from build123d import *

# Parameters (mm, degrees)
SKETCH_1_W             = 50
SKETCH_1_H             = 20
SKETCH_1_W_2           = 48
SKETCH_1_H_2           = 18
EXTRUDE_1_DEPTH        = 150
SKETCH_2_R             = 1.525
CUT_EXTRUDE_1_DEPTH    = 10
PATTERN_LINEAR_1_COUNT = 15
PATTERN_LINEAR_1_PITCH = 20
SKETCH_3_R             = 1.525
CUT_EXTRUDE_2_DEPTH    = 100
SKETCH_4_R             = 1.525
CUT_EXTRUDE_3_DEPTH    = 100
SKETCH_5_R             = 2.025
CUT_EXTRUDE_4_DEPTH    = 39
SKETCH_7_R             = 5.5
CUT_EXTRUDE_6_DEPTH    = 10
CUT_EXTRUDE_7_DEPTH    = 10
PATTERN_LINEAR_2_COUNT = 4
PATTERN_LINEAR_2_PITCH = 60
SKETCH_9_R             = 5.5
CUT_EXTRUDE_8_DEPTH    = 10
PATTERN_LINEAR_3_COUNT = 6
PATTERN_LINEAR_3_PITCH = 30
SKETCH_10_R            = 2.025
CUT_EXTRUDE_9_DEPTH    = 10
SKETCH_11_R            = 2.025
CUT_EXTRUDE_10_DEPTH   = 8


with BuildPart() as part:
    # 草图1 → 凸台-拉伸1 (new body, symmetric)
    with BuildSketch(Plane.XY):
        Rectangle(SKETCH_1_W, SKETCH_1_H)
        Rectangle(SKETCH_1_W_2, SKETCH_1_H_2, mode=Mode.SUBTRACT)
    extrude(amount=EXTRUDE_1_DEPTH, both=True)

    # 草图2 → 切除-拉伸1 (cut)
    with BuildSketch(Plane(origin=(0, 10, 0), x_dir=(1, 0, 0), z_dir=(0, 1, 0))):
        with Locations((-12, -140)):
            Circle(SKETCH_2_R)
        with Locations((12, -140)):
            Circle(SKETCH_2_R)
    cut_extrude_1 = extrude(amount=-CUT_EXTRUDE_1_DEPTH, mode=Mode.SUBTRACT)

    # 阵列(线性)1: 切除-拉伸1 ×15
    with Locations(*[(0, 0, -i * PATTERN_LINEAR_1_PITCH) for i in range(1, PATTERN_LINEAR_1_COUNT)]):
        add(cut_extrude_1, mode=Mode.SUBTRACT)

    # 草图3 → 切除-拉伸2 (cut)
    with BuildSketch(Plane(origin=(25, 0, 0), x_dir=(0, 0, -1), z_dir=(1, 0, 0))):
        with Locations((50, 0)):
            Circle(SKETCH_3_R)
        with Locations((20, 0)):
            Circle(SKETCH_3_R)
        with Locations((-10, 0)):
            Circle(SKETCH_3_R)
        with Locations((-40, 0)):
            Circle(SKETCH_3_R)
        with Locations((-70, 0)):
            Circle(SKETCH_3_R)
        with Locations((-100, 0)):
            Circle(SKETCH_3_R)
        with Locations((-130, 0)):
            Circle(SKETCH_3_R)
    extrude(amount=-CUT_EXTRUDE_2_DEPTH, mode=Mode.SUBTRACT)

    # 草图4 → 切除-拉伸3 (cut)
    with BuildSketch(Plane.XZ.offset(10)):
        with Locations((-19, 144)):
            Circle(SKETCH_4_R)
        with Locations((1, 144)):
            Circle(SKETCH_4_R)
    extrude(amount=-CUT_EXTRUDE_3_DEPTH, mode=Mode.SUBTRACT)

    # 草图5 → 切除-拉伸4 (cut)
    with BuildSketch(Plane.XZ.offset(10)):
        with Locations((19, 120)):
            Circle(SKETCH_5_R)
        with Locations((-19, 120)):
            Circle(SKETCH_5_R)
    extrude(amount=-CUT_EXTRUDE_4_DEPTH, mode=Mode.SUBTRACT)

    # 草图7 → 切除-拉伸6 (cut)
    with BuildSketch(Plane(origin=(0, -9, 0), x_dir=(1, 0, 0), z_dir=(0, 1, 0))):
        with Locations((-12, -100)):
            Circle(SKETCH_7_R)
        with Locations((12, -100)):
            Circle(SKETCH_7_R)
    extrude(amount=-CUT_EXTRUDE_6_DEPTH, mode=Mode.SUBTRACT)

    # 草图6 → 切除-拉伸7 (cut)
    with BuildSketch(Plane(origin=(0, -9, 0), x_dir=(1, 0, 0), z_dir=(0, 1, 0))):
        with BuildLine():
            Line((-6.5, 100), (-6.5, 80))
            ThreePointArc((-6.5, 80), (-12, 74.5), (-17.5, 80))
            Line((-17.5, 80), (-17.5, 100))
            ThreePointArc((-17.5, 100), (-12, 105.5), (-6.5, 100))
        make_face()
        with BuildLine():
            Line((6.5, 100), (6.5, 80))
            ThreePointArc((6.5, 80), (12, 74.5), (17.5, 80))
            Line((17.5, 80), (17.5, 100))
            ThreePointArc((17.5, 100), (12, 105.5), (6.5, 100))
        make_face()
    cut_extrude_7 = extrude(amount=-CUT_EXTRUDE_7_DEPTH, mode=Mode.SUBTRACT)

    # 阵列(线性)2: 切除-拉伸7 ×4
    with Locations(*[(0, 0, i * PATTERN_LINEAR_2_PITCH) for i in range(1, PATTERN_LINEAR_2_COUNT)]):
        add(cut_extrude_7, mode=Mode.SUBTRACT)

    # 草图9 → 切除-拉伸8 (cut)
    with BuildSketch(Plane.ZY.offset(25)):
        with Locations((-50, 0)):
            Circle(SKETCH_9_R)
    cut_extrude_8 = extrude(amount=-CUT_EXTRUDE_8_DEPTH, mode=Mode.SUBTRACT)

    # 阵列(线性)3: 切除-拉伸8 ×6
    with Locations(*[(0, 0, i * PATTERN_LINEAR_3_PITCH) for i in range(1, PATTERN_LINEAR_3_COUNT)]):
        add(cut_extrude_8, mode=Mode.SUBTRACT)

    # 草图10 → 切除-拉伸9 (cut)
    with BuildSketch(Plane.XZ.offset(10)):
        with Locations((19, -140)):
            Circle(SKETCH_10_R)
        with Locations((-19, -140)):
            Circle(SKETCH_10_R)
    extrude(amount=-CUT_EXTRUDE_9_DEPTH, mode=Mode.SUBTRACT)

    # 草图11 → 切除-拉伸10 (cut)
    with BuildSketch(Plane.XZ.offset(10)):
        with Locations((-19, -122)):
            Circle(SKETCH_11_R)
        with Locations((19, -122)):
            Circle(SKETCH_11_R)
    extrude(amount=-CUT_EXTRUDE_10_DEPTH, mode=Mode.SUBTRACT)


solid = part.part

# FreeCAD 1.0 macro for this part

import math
import FreeCAD as App
import Part
import Sketcher
Q = App.Units.Quantity

doc = App.newDocument("Part")
body = doc.addObject("PartDesign::Body", "Body")

# Sketch on XY plane
sketch1 = body.newObject("Sketcher::SketchObject", "Sketch")
sketch1.AttachmentSupport = (doc.getObject("XY_Plane"), [""])
sketch1.MapMode = "FlatFace"
sketch1.addGeometry(Part.LineSegment(App.Vector(-25, 10, 0), App.Vector(-25, -10, 0)), False)
sketch1.addGeometry(Part.LineSegment(App.Vector(-25, -10, 0), App.Vector(25, -10, 0)), False)
sketch1.addGeometry(Part.LineSegment(App.Vector(25, -10, 0), App.Vector(25, 10, 0)), False)
sketch1.addGeometry(Part.LineSegment(App.Vector(25, 10, 0), App.Vector(-25, 10, 0)), False)
sketch1.addGeometry(Part.LineSegment(App.Vector(24, -9, 0), App.Vector(-24, -9, 0)), False)
sketch1.addGeometry(Part.LineSegment(App.Vector(-24, -9, 0), App.Vector(-24, 9, 0)), False)
sketch1.addGeometry(Part.LineSegment(App.Vector(-24, 9, 0), App.Vector(24, 9, 0)), False)
sketch1.addGeometry(Part.LineSegment(App.Vector(24, 9, 0), App.Vector(24, -9, 0)), False)
sketch1.addConstraint(Sketcher.Constraint("Coincident", 0, 2, 1, 1))
sketch1.addConstraint(Sketcher.Constraint("Coincident", 1, 2, 2, 1))
sketch1.addConstraint(Sketcher.Constraint("Coincident", 2, 2, 3, 1))
sketch1.addConstraint(Sketcher.Constraint("Coincident", 3, 2, 0, 1))
sketch1.addConstraint(Sketcher.Constraint("Coincident", 4, 2, 5, 1))
sketch1.addConstraint(Sketcher.Constraint("Coincident", 5, 2, 6, 1))
sketch1.addConstraint(Sketcher.Constraint("Coincident", 6, 2, 7, 1))
sketch1.addConstraint(Sketcher.Constraint("Coincident", 7, 2, 4, 1))
sketch1.addConstraint(Sketcher.Constraint("Vertical", 0))
sketch1.addConstraint(Sketcher.Constraint("Horizontal", 1))
sketch1.addConstraint(Sketcher.Constraint("Vertical", 2))
sketch1.addConstraint(Sketcher.Constraint("Horizontal", 3))
sketch1.addConstraint(Sketcher.Constraint("Horizontal", 4))
sketch1.addConstraint(Sketcher.Constraint("Vertical", 5))
sketch1.addConstraint(Sketcher.Constraint("Horizontal", 6))
sketch1.addConstraint(Sketcher.Constraint("Vertical", 7))
sketch1.addConstraint(Sketcher.Constraint("Symmetric", 0, 2, 2, 2, -1, 1))
sketch1.addConstraint(Sketcher.Constraint("Symmetric", 4, 2, 6, 2, -1, 1))
sketch1.addConstraint(Sketcher.Constraint("DistanceX", 1, 1, 1, 2, Q("50 mm")))
sketch1.addConstraint(Sketcher.Constraint("DistanceX", 4, 2, 4, 1, Q("48 mm")))
sketch1.addConstraint(Sketcher.Constraint("DistanceY", 0, 2, 0, 1, Q("20 mm")))
sketch1.addConstraint(Sketcher.Constraint("DistanceY", 5, 1, 5, 2, Q("18 mm")))
pad1 = body.newObject("PartDesign::Pad", "Pad")
pad1.Profile = sketch1
pad1.Length = 300
pad1.Midplane = True

# Sketch on XZ plane
sketch2 = body.newObject("Sketcher::SketchObject", "Sketch001")
sketch2.AttachmentSupport = (doc.getObject("XZ_Plane"), [""])
sketch2.MapMode = "FlatFace"
sketch2.AttachmentOffset = App.Placement(App.Vector(0, 0, -10), App.Rotation())
sketch2.addGeometry(Part.Circle(App.Vector(-12, 140, 0), App.Vector(0, 0, 1), 1.525), False)
sketch2.addGeometry(Part.Circle(App.Vector(12, 140, 0), App.Vector(0, 0, 1), 1.525), False)
sketch2.addConstraint(Sketcher.Constraint("Equal", 0, 1))
sketch2.addConstraint(Sketcher.Constraint("Symmetric", 0, 3, 1, 3, -2))
sketch2.addConstraint(Sketcher.Constraint("Diameter", 0, Q("3.05 mm")))
sketch2.addConstraint(Sketcher.Constraint("DistanceX", 0, 3, -1, 1, Q("12 mm")))
sketch2.addConstraint(Sketcher.Constraint("DistanceY", -1, 1, 0, 3, Q("140 mm")))
pocket1 = body.newObject("PartDesign::Pocket", "Pocket")
pocket1.Profile = sketch2
pocket1.Length = 10
pocket1.Reversed = True
doc.recompute()

linearpattern = body.newObject("PartDesign::LinearPattern", "LinearPattern")
linearpattern.Originals = [pocket1]
linearpattern.Direction = (doc.getObject("Z_Axis"), [""])
linearpattern.Mode = "offset"
linearpattern.Offset = 20
linearpattern.Occurrences = 15
linearpattern.Reversed = True
body.Tip = linearpattern

# Sketch on YZ plane
sketch3 = body.newObject("Sketcher::SketchObject", "Sketch002")
sketch3.AttachmentSupport = (doc.getObject("YZ_Plane"), [""])
sketch3.MapMode = "FlatFace"
sketch3.AttachmentOffset = App.Placement(App.Vector(0, 0, 25), App.Rotation())
sketch3.addGeometry(Part.Circle(App.Vector(0, -50, 0), App.Vector(0, 0, 1), 1.525), False)
sketch3.addGeometry(Part.Circle(App.Vector(0, -20, 0), App.Vector(0, 0, 1), 1.525), False)
sketch3.addGeometry(Part.Circle(App.Vector(0, 10, 0), App.Vector(0, 0, 1), 1.525), False)
sketch3.addGeometry(Part.Circle(App.Vector(0, 40, 0), App.Vector(0, 0, 1), 1.525), False)
sketch3.addGeometry(Part.Circle(App.Vector(0, 70, 0), App.Vector(0, 0, 1), 1.525), False)
sketch3.addGeometry(Part.Circle(App.Vector(0, 100, 0), App.Vector(0, 0, 1), 1.525), False)
sketch3.addGeometry(Part.Circle(App.Vector(0, 130, 0), App.Vector(0, 0, 1), 1.525), False)
sketch3.addConstraint(Sketcher.Constraint("Equal", 0, 1))
sketch3.addConstraint(Sketcher.Constraint("Equal", 1, 2))
sketch3.addConstraint(Sketcher.Constraint("Equal", 2, 3))
sketch3.addConstraint(Sketcher.Constraint("Equal", 3, 4))
sketch3.addConstraint(Sketcher.Constraint("Equal", 4, 5))
sketch3.addConstraint(Sketcher.Constraint("Equal", 5, 6))
sketch3.addConstraint(Sketcher.Constraint("PointOnObject", 0, 3, -2))
sketch3.addConstraint(Sketcher.Constraint("PointOnObject", 1, 3, -2))
sketch3.addConstraint(Sketcher.Constraint("PointOnObject", 2, 3, -2))
sketch3.addConstraint(Sketcher.Constraint("PointOnObject", 3, 3, -2))
sketch3.addConstraint(Sketcher.Constraint("PointOnObject", 4, 3, -2))
sketch3.addConstraint(Sketcher.Constraint("PointOnObject", 5, 3, -2))
sketch3.addConstraint(Sketcher.Constraint("PointOnObject", 6, 3, -2))
sketch3.addConstraint(Sketcher.Constraint("Diameter", 0, Q("3.05 mm")))
sketch3.addConstraint(Sketcher.Constraint("DistanceY", 0, 3, -1, 1, Q("50 mm")))
sketch3.addConstraint(Sketcher.Constraint("DistanceY", 1, 3, -1, 1, Q("20 mm")))
sketch3.addConstraint(Sketcher.Constraint("DistanceY", -1, 1, 2, 3, Q("10 mm")))
sketch3.addConstraint(Sketcher.Constraint("DistanceY", -1, 1, 3, 3, Q("40 mm")))
sketch3.addConstraint(Sketcher.Constraint("DistanceY", -1, 1, 4, 3, Q("70 mm")))
sketch3.addConstraint(Sketcher.Constraint("DistanceY", -1, 1, 5, 3, Q("100 mm")))
sketch3.addConstraint(Sketcher.Constraint("DistanceY", -1, 1, 6, 3, Q("130 mm")))
pocket2 = body.newObject("PartDesign::Pocket", "Pocket001")
pocket2.Profile = sketch3
pocket2.Length = 100

# Sketch on XZ plane
sketch4 = body.newObject("Sketcher::SketchObject", "Sketch003")
sketch4.AttachmentSupport = (doc.getObject("XZ_Plane"), [""])
sketch4.MapMode = "FlatFace"
sketch4.AttachmentOffset = App.Placement(App.Vector(0, 0, 10), App.Rotation())
sketch4.addGeometry(Part.Circle(App.Vector(-19, 144, 0), App.Vector(0, 0, 1), 1.525), False)
sketch4.addGeometry(Part.Circle(App.Vector(1, 144, 0), App.Vector(0, 0, 1), 1.525), False)
sketch4.addConstraint(Sketcher.Constraint("Equal", 0, 1))
sketch4.addConstraint(Sketcher.Constraint("Horizontal", 0, 3, 1, 3))
sketch4.addConstraint(Sketcher.Constraint("Diameter", 0, Q("3.05 mm")))
sketch4.addConstraint(Sketcher.Constraint("DistanceX", 0, 3, -1, 1, Q("19 mm")))
sketch4.addConstraint(Sketcher.Constraint("DistanceY", -1, 1, 0, 3, Q("144 mm")))
sketch4.addConstraint(Sketcher.Constraint("DistanceX", -1, 1, 1, 3, Q("1 mm")))
pocket3 = body.newObject("PartDesign::Pocket", "Pocket002")
pocket3.Profile = sketch4
pocket3.Length = 100

# Sketch on XZ plane
sketch5 = body.newObject("Sketcher::SketchObject", "Sketch004")
sketch5.AttachmentSupport = (doc.getObject("XZ_Plane"), [""])
sketch5.MapMode = "FlatFace"
sketch5.AttachmentOffset = App.Placement(App.Vector(0, 0, 10), App.Rotation())
sketch5.addGeometry(Part.Circle(App.Vector(19, 120, 0), App.Vector(0, 0, 1), 2.025), False)
sketch5.addGeometry(Part.Circle(App.Vector(-19, 120, 0), App.Vector(0, 0, 1), 2.025), False)
sketch5.addConstraint(Sketcher.Constraint("Equal", 0, 1))
sketch5.addConstraint(Sketcher.Constraint("Symmetric", 0, 3, 1, 3, -2))
sketch5.addConstraint(Sketcher.Constraint("Diameter", 0, Q("4.05 mm")))
sketch5.addConstraint(Sketcher.Constraint("DistanceX", -1, 1, 0, 3, Q("19 mm")))
sketch5.addConstraint(Sketcher.Constraint("DistanceY", -1, 1, 0, 3, Q("120 mm")))
pocket4 = body.newObject("PartDesign::Pocket", "Pocket003")
pocket4.Profile = sketch5
pocket4.Length = 39

# Sketch on XZ plane
sketch6 = body.newObject("Sketcher::SketchObject", "Sketch005")
sketch6.AttachmentSupport = (doc.getObject("XZ_Plane"), [""])
sketch6.MapMode = "FlatFace"
sketch6.AttachmentOffset = App.Placement(App.Vector(0, 0, 9), App.Rotation())
sketch6.addGeometry(Part.Circle(App.Vector(-12, 100, 0), App.Vector(0, 0, 1), 5.5), False)
sketch6.addGeometry(Part.Circle(App.Vector(12, 100, 0), App.Vector(0, 0, 1), 5.5), False)
sketch6.addConstraint(Sketcher.Constraint("Equal", 0, 1))
sketch6.addConstraint(Sketcher.Constraint("Symmetric", 0, 3, 1, 3, -2))
sketch6.addConstraint(Sketcher.Constraint("Diameter", 0, Q("11 mm")))
sketch6.addConstraint(Sketcher.Constraint("DistanceX", 0, 3, -1, 1, Q("12 mm")))
sketch6.addConstraint(Sketcher.Constraint("DistanceY", -1, 1, 0, 3, Q("100 mm")))
pocket5 = body.newObject("PartDesign::Pocket", "Pocket004")
pocket5.Profile = sketch6
pocket5.Length = 10
pocket5.Reversed = True

# Sketch on XZ plane
sketch7 = body.newObject("Sketcher::SketchObject", "Sketch006")
sketch7.AttachmentSupport = (doc.getObject("XZ_Plane"), [""])
sketch7.MapMode = "FlatFace"
sketch7.AttachmentOffset = App.Placement(App.Vector(0, 0, 9), App.Rotation())
sketch7.addGeometry(Part.LineSegment(App.Vector(-6.5, -80, 0), App.Vector(-6.5, -100, 0)), False)
sketch7.addGeometry(Part.ArcOfCircle(Part.Circle(App.Vector(-12, -100, 0), App.Vector(0, 0, 1), 5.5), math.radians(180), math.radians(360)), False)
sketch7.addGeometry(Part.LineSegment(App.Vector(-17.5, -100, 0), App.Vector(-17.5, -80, 0)), False)
sketch7.addGeometry(Part.ArcOfCircle(Part.Circle(App.Vector(-12, -80, 0), App.Vector(0, 0, 1), 5.5), math.radians(0), math.radians(180)), False)
sketch7.addGeometry(Part.LineSegment(App.Vector(6.5, -100, 0), App.Vector(6.5, -80, 0)), False)
sketch7.addGeometry(Part.ArcOfCircle(Part.Circle(App.Vector(12, -80, 0), App.Vector(0, 0, 1), 5.5), math.radians(0), math.radians(180)), False)
sketch7.addGeometry(Part.LineSegment(App.Vector(17.5, -80, 0), App.Vector(17.5, -100, 0)), False)
sketch7.addGeometry(Part.ArcOfCircle(Part.Circle(App.Vector(12, -100, 0), App.Vector(0, 0, 1), 5.5), math.radians(180), math.radians(360)), False)
sketch7.addConstraint(Sketcher.Constraint("Tangent", 0, 2, 1, 2))
sketch7.addConstraint(Sketcher.Constraint("Tangent", 1, 1, 2, 1))
sketch7.addConstraint(Sketcher.Constraint("Tangent", 2, 2, 3, 2))
sketch7.addConstraint(Sketcher.Constraint("Tangent", 3, 1, 0, 1))
sketch7.addConstraint(Sketcher.Constraint("Tangent", 4, 2, 5, 2))
sketch7.addConstraint(Sketcher.Constraint("Tangent", 5, 1, 6, 1))
sketch7.addConstraint(Sketcher.Constraint("Tangent", 6, 2, 7, 2))
sketch7.addConstraint(Sketcher.Constraint("Tangent", 7, 1, 4, 1))
sketch7.addConstraint(Sketcher.Constraint("Vertical", 0))
sketch7.addConstraint(Sketcher.Constraint("Vertical", 2))
sketch7.addConstraint(Sketcher.Constraint("Vertical", 4))
sketch7.addConstraint(Sketcher.Constraint("Vertical", 6))
sketch7.addConstraint(Sketcher.Constraint("Equal", 3, 5))
sketch7.addConstraint(Sketcher.Constraint("Symmetric", 3, 3, 5, 3, -2))
sketch7.addConstraint(Sketcher.Constraint("Horizontal", 1, 3, 7, 3))
sketch7.addConstraint(Sketcher.Constraint("Radius", 1, Q("5.5 mm")))
sketch7.addConstraint(Sketcher.Constraint("DistanceY", 0, 2, 0, 1, Q("20 mm")))
sketch7.addConstraint(Sketcher.Constraint("DistanceX", 1, 3, -1, 1, Q("12 mm")))
sketch7.addConstraint(Sketcher.Constraint("DistanceY", 1, 3, -1, 1, Q("100 mm")))
pocket6 = body.newObject("PartDesign::Pocket", "Pocket005")
pocket6.Profile = sketch7
pocket6.Length = 10
pocket6.Reversed = True
doc.recompute()

linearpattern2 = body.newObject("PartDesign::LinearPattern", "LinearPattern001")
linearpattern2.Originals = [pocket6]
linearpattern2.Direction = (doc.getObject("Z_Axis"), [""])
linearpattern2.Mode = "offset"
linearpattern2.Offset = 60
linearpattern2.Occurrences = 4
body.Tip = linearpattern2

# Sketch on YZ plane
sketch8 = body.newObject("Sketcher::SketchObject", "Sketch007")
sketch8.AttachmentSupport = (doc.getObject("YZ_Plane"), [""])
sketch8.MapMode = "FlatFace"
sketch8.AttachmentOffset = App.Placement(App.Vector(0, 0, -25), App.Rotation())
sketch8.addGeometry(Part.Circle(App.Vector(0, -50, 0), App.Vector(0, 0, 1), 5.5), False)
sketch8.addConstraint(Sketcher.Constraint("PointOnObject", 0, 3, -2))
sketch8.addConstraint(Sketcher.Constraint("Diameter", 0, Q("11 mm")))
sketch8.addConstraint(Sketcher.Constraint("DistanceY", 0, 3, -1, 1, Q("50 mm")))
pocket7 = body.newObject("PartDesign::Pocket", "Pocket006")
pocket7.Profile = sketch8
pocket7.Length = 10
pocket7.Reversed = True
doc.recompute()

linearpattern3 = body.newObject("PartDesign::LinearPattern", "LinearPattern002")
linearpattern3.Originals = [pocket7]
linearpattern3.Direction = (doc.getObject("Z_Axis"), [""])
linearpattern3.Mode = "offset"
linearpattern3.Offset = 30
linearpattern3.Occurrences = 6
body.Tip = linearpattern3

# Sketch on XZ plane
sketch9 = body.newObject("Sketcher::SketchObject", "Sketch008")
sketch9.AttachmentSupport = (doc.getObject("XZ_Plane"), [""])
sketch9.MapMode = "FlatFace"
sketch9.AttachmentOffset = App.Placement(App.Vector(0, 0, 10), App.Rotation())
sketch9.addGeometry(Part.Circle(App.Vector(19, -140, 0), App.Vector(0, 0, 1), 2.025), False)
sketch9.addGeometry(Part.Circle(App.Vector(-19, -140, 0), App.Vector(0, 0, 1), 2.025), False)
sketch9.addConstraint(Sketcher.Constraint("Equal", 0, 1))
sketch9.addConstraint(Sketcher.Constraint("Symmetric", 0, 3, 1, 3, -2))
sketch9.addConstraint(Sketcher.Constraint("Diameter", 0, Q("4.05 mm")))
sketch9.addConstraint(Sketcher.Constraint("DistanceX", -1, 1, 0, 3, Q("19 mm")))
sketch9.addConstraint(Sketcher.Constraint("DistanceY", 0, 3, -1, 1, Q("140 mm")))
pocket8 = body.newObject("PartDesign::Pocket", "Pocket007")
pocket8.Profile = sketch9
pocket8.Length = 10

# Sketch on XZ plane
sketch10 = body.newObject("Sketcher::SketchObject", "Sketch009")
sketch10.AttachmentSupport = (doc.getObject("XZ_Plane"), [""])
sketch10.MapMode = "FlatFace"
sketch10.AttachmentOffset = App.Placement(App.Vector(0, 0, 10), App.Rotation())
sketch10.addGeometry(Part.Circle(App.Vector(-19, -122, 0), App.Vector(0, 0, 1), 2.025), False)
sketch10.addGeometry(Part.Circle(App.Vector(19, -122, 0), App.Vector(0, 0, 1), 2.025), False)
sketch10.addConstraint(Sketcher.Constraint("Equal", 0, 1))
sketch10.addConstraint(Sketcher.Constraint("Symmetric", 0, 3, 1, 3, -2))
sketch10.addConstraint(Sketcher.Constraint("Diameter", 0, Q("4.05 mm")))
sketch10.addConstraint(Sketcher.Constraint("DistanceX", 0, 3, -1, 1, Q("19 mm")))
sketch10.addConstraint(Sketcher.Constraint("DistanceY", 0, 3, -1, 1, Q("122 mm")))
pocket9 = body.newObject("PartDesign::Pocket", "Pocket008")
pocket9.Profile = sketch10
pocket9.Length = 8

doc.recompute()
